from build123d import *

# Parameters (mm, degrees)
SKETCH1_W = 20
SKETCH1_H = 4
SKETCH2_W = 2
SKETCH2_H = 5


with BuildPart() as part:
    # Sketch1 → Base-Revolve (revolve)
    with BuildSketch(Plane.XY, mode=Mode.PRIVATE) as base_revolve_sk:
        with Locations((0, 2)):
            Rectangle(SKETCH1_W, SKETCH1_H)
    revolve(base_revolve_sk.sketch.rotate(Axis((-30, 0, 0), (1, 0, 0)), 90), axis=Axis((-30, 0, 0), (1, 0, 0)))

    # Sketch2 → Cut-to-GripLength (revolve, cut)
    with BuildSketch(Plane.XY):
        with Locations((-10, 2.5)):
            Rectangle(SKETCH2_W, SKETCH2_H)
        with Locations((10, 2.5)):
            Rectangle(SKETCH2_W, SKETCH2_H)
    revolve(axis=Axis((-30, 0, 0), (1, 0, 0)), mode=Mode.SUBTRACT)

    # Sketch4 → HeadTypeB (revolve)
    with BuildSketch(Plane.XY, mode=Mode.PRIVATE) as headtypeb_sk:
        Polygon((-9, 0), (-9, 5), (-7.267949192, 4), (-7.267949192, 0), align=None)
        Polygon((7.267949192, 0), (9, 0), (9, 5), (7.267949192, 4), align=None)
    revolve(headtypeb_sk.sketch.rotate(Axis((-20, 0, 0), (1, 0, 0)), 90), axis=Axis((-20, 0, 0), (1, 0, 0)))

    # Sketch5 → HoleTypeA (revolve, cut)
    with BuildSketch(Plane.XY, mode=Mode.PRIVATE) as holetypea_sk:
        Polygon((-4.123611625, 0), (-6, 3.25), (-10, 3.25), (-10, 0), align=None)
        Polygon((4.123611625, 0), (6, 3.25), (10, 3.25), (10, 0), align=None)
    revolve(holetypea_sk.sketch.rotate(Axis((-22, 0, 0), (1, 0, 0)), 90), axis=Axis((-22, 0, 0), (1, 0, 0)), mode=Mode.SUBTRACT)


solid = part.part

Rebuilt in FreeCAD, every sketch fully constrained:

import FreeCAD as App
import Part
import Sketcher
Q = App.Units.Quantity

doc = App.newDocument("Part")
body = doc.addObject("PartDesign::Body", "Body")

# Sketch on XY plane
sketch1 = doc.addObject("Sketcher::SketchObject", "Sketch")
body.addObject(sketch1)
sketch1.AttachmentSupport = (doc.XY_Plane, [""])
sketch1.MapMode = "FlatFace"
sketch1.addGeometry([
    Part.LineSegment(App.Vector(-10, 4, 0), App.Vector(-10, 0, 0)),
    Part.LineSegment(App.Vector(-10, 0, 0), App.Vector(10, 0, 0)),
    Part.LineSegment(App.Vector(10, 0, 0), App.Vector(10, 4, 0)),
    Part.LineSegment(App.Vector(10, 4, 0), App.Vector(-10, 4, 0)),
], False)
sketch1.addConstraint([
    Sketcher.Constraint("Coincident", 0, 2, 1, 1),
    Sketcher.Constraint("Coincident", 1, 2, 2, 1),
    Sketcher.Constraint("Coincident", 2, 2, 3, 1),
    Sketcher.Constraint("Coincident", 3, 2, 0, 1),
    Sketcher.Constraint("Vertical", 0),
    Sketcher.Constraint("Horizontal", 1),
    Sketcher.Constraint("Vertical", 2),
    Sketcher.Constraint("Horizontal", 3),
    Sketcher.Constraint("Symmetric", 0, 2, 1, 2, -1, 1),
    Sketcher.Constraint("DistanceX", 1, 1, 1, 2, 20.0),
    Sketcher.Constraint("DistanceY", 0, 2, 0, 1, 4.0),
])
revolution = doc.addObject("PartDesign::Revolution", "Revolution")
body.addObject(revolution)
revolution.Profile = sketch1
revolution.ReferenceAxis = (sketch1, ["H_Axis"])
revolution.Angle = 360

# Sketch on XY plane
sketch2 = doc.addObject("Sketcher::SketchObject", "Sketch001")
body.addObject(sketch2)
sketch2.AttachmentSupport = (doc.XY_Plane, [""])
sketch2.MapMode = "FlatFace"
sketch2.addGeometry([
    Part.LineSegment(App.Vector(-11, 5, 0), App.Vector(-11, 0, 0)),  # 0
    Part.LineSegment(App.Vector(-11, 0, 0), App.Vector(-9, 0, 0)),  # 1
    Part.LineSegment(App.Vector(-9, 0, 0), App.Vector(-9, 5, 0)),  # 2
    Part.LineSegment(App.Vector(-9, 5, 0), App.Vector(-11, 5, 0)),  # 3
    Part.LineSegment(App.Vector(9, 5, 0), App.Vector(9, 0, 0)),  # 4
    Part.LineSegment(App.Vector(9, 0, 0), App.Vector(11, 0, 0)),  # 5
    Part.LineSegment(App.Vector(11, 0, 0), App.Vector(11, 5, 0)),  # 6
    Part.LineSegment(App.Vector(11, 5, 0), App.Vector(9, 5, 0)),  # 7
], False)
sketch2.addConstraint([
    Sketcher.Constraint("Coincident", 0, 2, 1, 1),
    Sketcher.Constraint("Coincident", 1, 2, 2, 1),
    Sketcher.Constraint("Coincident", 2, 2, 3, 1),
    Sketcher.Constraint("Coincident", 3, 2, 0, 1),
    Sketcher.Constraint("Coincident", 4, 2, 5, 1),
    Sketcher.Constraint("Coincident", 5, 2, 6, 1),
    Sketcher.Constraint("Coincident", 6, 2, 7, 1),
    Sketcher.Constraint("Coincident", 7, 2, 4, 1),
    Sketcher.Constraint("Vertical", 0),
    Sketcher.Constraint("Horizontal", 1),
    Sketcher.Constraint("Vertical", 2),
    Sketcher.Constraint("Horizontal", 3),
    Sketcher.Constraint("Vertical", 4),
    Sketcher.Constraint("Horizontal", 5),
    Sketcher.Constraint("Vertical", 6),
    Sketcher.Constraint("Horizontal", 7),
    Sketcher.Constraint("Symmetric", 1, 2, 4, 2, -1, 1),
    Sketcher.Constraint("Symmetric", 0, 2, 5, 2, -2),
    Sketcher.Constraint("Horizontal", 3, 2, 6, 2),
    Sketcher.Constraint("DistanceX", 1, 1, 1, 2, 2.0),
    Sketcher.Constraint("DistanceY", 0, 2, 0, 1, 5.0),
    Sketcher.Constraint("DistanceX", 0, 2, -1, 1, 11.0),
])
groove = doc.addObject("PartDesign::Groove", "Groove")
body.addObject(groove)
groove.Profile = sketch2
groove.ReferenceAxis = (sketch2, ["H_Axis"])
groove.Angle = 360

# Sketch on XY plane
sketch3 = doc.addObject("Sketcher::SketchObject", "Sketch002")
body.addObject(sketch3)
sketch3.AttachmentSupport = (doc.XY_Plane, [""])
sketch3.MapMode = "FlatFace"
sketch3.addGeometry([
    Part.LineSegment(App.Vector(-9, 5, 0), App.Vector(-9, 0, 0)),  # 0
    Part.LineSegment(App.Vector(-9, 0, 0), App.Vector(-7.267949, 0, 0)),  # 1
    Part.LineSegment(App.Vector(-7.267949, 0, 0), App.Vector(-7.267949, 4, 0)),  # 2
    Part.LineSegment(App.Vector(-7.267949, 4, 0), App.Vector(-9, 5, 0)),  # 3
    Part.LineSegment(App.Vector(7.267949, 0, 0), App.Vector(9, 0, 0)),  # 4
    Part.LineSegment(App.Vector(9, 0, 0), App.Vector(9, 5, 0)),  # 5
    Part.LineSegment(App.Vector(9, 5, 0), App.Vector(7.267949, 4, 0)),  # 6
    Part.LineSegment(App.Vector(7.267949, 4, 0), App.Vector(7.267949, 0, 0)),  # 7
], False)
sketch3.addConstraint([
    Sketcher.Constraint("Coincident", 0, 2, 1, 1),
    Sketcher.Constraint("Coincident", 1, 2, 2, 1),
    Sketcher.Constraint("Coincident", 2, 2, 3, 1),
    Sketcher.Constraint("Coincident", 3, 2, 0, 1),
    Sketcher.Constraint("Coincident", 4, 2, 5, 1),
    Sketcher.Constraint("Coincident", 5, 2, 6, 1),
    Sketcher.Constraint("Coincident", 6, 2, 7, 1),
    Sketcher.Constraint("Coincident", 7, 2, 4, 1),
    Sketcher.Constraint("Vertical", 0),
    Sketcher.Constraint("Horizontal", 1),
    Sketcher.Constraint("Vertical", 2),
    Sketcher.Constraint("Horizontal", 4),
    Sketcher.Constraint("Vertical", 5),
    Sketcher.Constraint("Vertical", 7),
    Sketcher.Constraint("Symmetric", 0, 2, 4, 2, -1, 1),
    Sketcher.Constraint("Symmetric", 2, 2, 6, 2, -2),
    Sketcher.Constraint("PointOnObject", 0, 2, -1),
    Sketcher.Constraint("Horizontal", 3, 2, 5, 2),
    Sketcher.Constraint("DistanceY", 0, 2, 0, 1, 5.0),
    Sketcher.Constraint("DistanceY", 2, 1, 2, 2, 4.0),
    Sketcher.Constraint("Angle", 3, Q("150 deg")),
    Sketcher.Constraint("DistanceX", 0, 2, -1, 1, 9.0),
])
revolution2 = doc.addObject("PartDesign::Revolution", "Revolution001")
body.addObject(revolution2)
revolution2.Profile = sketch3
revolution2.ReferenceAxis = (sketch3, ["H_Axis"])
revolution2.Angle = 360

# Sketch on XY plane
sketch4 = doc.addObject("Sketcher::SketchObject", "Sketch003")
body.addObject(sketch4)
sketch4.AttachmentSupport = (doc.XY_Plane, [""])
sketch4.MapMode = "FlatFace"
sketch4.addGeometry([
    Part.LineSegment(App.Vector(-4.123612, 0, 0), App.Vector(-6, 3.25, 0)),  # 0
    Part.LineSegment(App.Vector(-6, 3.25, 0), App.Vector(-10, 3.25, 0)),  # 1
    Part.LineSegment(App.Vector(-10, 3.25, 0), App.Vector(-10, 0, 0)),  # 2
    Part.LineSegment(App.Vector(-10, 0, 0), App.Vector(-4.123612, 0, 0)),  # 3
    Part.LineSegment(App.Vector(6, 3.25, 0), App.Vector(4.123612, 0, 0)),  # 4
    Part.LineSegment(App.Vector(4.123612, 0, 0), App.Vector(10, 0, 0)),  # 5
    Part.LineSegment(App.Vector(10, 0, 0), App.Vector(10, 3.25, 0)),  # 6
    Part.LineSegment(App.Vector(10, 3.25, 0), App.Vector(6, 3.25, 0)),  # 7
], False)
sketch4.addConstraint([
    Sketcher.Constraint("Coincident", 0, 2, 1, 1),
    Sketcher.Constraint("Coincident", 1, 2, 2, 1),
    Sketcher.Constraint("Coincident", 2, 2, 3, 1),
    Sketcher.Constraint("Coincident", 3, 2, 0, 1),
    Sketcher.Constraint("Coincident", 4, 2, 5, 1),
    Sketcher.Constraint("Coincident", 5, 2, 6, 1),
    Sketcher.Constraint("Coincident", 6, 2, 7, 1),
    Sketcher.Constraint("Coincident", 7, 2, 4, 1),
    Sketcher.Constraint("Horizontal", 1),
    Sketcher.Constraint("Vertical", 2),
    Sketcher.Constraint("Horizontal", 3),
    Sketcher.Constraint("Horizontal", 5),
    Sketcher.Constraint("Vertical", 6),
    Sketcher.Constraint("Horizontal", 7),
    Sketcher.Constraint("Symmetric", 3, 2, 4, 2, -1, 1),
    Sketcher.Constraint("Symmetric", 2, 2, 5, 2, -2),
    Sketcher.Constraint("Symmetric", 0, 2, 7, 2, -2),
    Sketcher.Constraint("DistanceX", 1, 2, 1, 1, 4.0),
    Sketcher.Constraint("Angle", 0, Q("120 deg")),
    Sketcher.Constraint("DistanceX", 0, 2, -1, 1, 6.0),
    Sketcher.Constraint("DistanceY", 2, 2, 2, 1, 3.25),
])
groove2 = doc.addObject("PartDesign::Groove", "Groove001")
body.addObject(groove2)
groove2.Profile = sketch4
groove2.ReferenceAxis = (sketch4, ["H_Axis"])
groove2.Angle = 360

doc.recompute()
